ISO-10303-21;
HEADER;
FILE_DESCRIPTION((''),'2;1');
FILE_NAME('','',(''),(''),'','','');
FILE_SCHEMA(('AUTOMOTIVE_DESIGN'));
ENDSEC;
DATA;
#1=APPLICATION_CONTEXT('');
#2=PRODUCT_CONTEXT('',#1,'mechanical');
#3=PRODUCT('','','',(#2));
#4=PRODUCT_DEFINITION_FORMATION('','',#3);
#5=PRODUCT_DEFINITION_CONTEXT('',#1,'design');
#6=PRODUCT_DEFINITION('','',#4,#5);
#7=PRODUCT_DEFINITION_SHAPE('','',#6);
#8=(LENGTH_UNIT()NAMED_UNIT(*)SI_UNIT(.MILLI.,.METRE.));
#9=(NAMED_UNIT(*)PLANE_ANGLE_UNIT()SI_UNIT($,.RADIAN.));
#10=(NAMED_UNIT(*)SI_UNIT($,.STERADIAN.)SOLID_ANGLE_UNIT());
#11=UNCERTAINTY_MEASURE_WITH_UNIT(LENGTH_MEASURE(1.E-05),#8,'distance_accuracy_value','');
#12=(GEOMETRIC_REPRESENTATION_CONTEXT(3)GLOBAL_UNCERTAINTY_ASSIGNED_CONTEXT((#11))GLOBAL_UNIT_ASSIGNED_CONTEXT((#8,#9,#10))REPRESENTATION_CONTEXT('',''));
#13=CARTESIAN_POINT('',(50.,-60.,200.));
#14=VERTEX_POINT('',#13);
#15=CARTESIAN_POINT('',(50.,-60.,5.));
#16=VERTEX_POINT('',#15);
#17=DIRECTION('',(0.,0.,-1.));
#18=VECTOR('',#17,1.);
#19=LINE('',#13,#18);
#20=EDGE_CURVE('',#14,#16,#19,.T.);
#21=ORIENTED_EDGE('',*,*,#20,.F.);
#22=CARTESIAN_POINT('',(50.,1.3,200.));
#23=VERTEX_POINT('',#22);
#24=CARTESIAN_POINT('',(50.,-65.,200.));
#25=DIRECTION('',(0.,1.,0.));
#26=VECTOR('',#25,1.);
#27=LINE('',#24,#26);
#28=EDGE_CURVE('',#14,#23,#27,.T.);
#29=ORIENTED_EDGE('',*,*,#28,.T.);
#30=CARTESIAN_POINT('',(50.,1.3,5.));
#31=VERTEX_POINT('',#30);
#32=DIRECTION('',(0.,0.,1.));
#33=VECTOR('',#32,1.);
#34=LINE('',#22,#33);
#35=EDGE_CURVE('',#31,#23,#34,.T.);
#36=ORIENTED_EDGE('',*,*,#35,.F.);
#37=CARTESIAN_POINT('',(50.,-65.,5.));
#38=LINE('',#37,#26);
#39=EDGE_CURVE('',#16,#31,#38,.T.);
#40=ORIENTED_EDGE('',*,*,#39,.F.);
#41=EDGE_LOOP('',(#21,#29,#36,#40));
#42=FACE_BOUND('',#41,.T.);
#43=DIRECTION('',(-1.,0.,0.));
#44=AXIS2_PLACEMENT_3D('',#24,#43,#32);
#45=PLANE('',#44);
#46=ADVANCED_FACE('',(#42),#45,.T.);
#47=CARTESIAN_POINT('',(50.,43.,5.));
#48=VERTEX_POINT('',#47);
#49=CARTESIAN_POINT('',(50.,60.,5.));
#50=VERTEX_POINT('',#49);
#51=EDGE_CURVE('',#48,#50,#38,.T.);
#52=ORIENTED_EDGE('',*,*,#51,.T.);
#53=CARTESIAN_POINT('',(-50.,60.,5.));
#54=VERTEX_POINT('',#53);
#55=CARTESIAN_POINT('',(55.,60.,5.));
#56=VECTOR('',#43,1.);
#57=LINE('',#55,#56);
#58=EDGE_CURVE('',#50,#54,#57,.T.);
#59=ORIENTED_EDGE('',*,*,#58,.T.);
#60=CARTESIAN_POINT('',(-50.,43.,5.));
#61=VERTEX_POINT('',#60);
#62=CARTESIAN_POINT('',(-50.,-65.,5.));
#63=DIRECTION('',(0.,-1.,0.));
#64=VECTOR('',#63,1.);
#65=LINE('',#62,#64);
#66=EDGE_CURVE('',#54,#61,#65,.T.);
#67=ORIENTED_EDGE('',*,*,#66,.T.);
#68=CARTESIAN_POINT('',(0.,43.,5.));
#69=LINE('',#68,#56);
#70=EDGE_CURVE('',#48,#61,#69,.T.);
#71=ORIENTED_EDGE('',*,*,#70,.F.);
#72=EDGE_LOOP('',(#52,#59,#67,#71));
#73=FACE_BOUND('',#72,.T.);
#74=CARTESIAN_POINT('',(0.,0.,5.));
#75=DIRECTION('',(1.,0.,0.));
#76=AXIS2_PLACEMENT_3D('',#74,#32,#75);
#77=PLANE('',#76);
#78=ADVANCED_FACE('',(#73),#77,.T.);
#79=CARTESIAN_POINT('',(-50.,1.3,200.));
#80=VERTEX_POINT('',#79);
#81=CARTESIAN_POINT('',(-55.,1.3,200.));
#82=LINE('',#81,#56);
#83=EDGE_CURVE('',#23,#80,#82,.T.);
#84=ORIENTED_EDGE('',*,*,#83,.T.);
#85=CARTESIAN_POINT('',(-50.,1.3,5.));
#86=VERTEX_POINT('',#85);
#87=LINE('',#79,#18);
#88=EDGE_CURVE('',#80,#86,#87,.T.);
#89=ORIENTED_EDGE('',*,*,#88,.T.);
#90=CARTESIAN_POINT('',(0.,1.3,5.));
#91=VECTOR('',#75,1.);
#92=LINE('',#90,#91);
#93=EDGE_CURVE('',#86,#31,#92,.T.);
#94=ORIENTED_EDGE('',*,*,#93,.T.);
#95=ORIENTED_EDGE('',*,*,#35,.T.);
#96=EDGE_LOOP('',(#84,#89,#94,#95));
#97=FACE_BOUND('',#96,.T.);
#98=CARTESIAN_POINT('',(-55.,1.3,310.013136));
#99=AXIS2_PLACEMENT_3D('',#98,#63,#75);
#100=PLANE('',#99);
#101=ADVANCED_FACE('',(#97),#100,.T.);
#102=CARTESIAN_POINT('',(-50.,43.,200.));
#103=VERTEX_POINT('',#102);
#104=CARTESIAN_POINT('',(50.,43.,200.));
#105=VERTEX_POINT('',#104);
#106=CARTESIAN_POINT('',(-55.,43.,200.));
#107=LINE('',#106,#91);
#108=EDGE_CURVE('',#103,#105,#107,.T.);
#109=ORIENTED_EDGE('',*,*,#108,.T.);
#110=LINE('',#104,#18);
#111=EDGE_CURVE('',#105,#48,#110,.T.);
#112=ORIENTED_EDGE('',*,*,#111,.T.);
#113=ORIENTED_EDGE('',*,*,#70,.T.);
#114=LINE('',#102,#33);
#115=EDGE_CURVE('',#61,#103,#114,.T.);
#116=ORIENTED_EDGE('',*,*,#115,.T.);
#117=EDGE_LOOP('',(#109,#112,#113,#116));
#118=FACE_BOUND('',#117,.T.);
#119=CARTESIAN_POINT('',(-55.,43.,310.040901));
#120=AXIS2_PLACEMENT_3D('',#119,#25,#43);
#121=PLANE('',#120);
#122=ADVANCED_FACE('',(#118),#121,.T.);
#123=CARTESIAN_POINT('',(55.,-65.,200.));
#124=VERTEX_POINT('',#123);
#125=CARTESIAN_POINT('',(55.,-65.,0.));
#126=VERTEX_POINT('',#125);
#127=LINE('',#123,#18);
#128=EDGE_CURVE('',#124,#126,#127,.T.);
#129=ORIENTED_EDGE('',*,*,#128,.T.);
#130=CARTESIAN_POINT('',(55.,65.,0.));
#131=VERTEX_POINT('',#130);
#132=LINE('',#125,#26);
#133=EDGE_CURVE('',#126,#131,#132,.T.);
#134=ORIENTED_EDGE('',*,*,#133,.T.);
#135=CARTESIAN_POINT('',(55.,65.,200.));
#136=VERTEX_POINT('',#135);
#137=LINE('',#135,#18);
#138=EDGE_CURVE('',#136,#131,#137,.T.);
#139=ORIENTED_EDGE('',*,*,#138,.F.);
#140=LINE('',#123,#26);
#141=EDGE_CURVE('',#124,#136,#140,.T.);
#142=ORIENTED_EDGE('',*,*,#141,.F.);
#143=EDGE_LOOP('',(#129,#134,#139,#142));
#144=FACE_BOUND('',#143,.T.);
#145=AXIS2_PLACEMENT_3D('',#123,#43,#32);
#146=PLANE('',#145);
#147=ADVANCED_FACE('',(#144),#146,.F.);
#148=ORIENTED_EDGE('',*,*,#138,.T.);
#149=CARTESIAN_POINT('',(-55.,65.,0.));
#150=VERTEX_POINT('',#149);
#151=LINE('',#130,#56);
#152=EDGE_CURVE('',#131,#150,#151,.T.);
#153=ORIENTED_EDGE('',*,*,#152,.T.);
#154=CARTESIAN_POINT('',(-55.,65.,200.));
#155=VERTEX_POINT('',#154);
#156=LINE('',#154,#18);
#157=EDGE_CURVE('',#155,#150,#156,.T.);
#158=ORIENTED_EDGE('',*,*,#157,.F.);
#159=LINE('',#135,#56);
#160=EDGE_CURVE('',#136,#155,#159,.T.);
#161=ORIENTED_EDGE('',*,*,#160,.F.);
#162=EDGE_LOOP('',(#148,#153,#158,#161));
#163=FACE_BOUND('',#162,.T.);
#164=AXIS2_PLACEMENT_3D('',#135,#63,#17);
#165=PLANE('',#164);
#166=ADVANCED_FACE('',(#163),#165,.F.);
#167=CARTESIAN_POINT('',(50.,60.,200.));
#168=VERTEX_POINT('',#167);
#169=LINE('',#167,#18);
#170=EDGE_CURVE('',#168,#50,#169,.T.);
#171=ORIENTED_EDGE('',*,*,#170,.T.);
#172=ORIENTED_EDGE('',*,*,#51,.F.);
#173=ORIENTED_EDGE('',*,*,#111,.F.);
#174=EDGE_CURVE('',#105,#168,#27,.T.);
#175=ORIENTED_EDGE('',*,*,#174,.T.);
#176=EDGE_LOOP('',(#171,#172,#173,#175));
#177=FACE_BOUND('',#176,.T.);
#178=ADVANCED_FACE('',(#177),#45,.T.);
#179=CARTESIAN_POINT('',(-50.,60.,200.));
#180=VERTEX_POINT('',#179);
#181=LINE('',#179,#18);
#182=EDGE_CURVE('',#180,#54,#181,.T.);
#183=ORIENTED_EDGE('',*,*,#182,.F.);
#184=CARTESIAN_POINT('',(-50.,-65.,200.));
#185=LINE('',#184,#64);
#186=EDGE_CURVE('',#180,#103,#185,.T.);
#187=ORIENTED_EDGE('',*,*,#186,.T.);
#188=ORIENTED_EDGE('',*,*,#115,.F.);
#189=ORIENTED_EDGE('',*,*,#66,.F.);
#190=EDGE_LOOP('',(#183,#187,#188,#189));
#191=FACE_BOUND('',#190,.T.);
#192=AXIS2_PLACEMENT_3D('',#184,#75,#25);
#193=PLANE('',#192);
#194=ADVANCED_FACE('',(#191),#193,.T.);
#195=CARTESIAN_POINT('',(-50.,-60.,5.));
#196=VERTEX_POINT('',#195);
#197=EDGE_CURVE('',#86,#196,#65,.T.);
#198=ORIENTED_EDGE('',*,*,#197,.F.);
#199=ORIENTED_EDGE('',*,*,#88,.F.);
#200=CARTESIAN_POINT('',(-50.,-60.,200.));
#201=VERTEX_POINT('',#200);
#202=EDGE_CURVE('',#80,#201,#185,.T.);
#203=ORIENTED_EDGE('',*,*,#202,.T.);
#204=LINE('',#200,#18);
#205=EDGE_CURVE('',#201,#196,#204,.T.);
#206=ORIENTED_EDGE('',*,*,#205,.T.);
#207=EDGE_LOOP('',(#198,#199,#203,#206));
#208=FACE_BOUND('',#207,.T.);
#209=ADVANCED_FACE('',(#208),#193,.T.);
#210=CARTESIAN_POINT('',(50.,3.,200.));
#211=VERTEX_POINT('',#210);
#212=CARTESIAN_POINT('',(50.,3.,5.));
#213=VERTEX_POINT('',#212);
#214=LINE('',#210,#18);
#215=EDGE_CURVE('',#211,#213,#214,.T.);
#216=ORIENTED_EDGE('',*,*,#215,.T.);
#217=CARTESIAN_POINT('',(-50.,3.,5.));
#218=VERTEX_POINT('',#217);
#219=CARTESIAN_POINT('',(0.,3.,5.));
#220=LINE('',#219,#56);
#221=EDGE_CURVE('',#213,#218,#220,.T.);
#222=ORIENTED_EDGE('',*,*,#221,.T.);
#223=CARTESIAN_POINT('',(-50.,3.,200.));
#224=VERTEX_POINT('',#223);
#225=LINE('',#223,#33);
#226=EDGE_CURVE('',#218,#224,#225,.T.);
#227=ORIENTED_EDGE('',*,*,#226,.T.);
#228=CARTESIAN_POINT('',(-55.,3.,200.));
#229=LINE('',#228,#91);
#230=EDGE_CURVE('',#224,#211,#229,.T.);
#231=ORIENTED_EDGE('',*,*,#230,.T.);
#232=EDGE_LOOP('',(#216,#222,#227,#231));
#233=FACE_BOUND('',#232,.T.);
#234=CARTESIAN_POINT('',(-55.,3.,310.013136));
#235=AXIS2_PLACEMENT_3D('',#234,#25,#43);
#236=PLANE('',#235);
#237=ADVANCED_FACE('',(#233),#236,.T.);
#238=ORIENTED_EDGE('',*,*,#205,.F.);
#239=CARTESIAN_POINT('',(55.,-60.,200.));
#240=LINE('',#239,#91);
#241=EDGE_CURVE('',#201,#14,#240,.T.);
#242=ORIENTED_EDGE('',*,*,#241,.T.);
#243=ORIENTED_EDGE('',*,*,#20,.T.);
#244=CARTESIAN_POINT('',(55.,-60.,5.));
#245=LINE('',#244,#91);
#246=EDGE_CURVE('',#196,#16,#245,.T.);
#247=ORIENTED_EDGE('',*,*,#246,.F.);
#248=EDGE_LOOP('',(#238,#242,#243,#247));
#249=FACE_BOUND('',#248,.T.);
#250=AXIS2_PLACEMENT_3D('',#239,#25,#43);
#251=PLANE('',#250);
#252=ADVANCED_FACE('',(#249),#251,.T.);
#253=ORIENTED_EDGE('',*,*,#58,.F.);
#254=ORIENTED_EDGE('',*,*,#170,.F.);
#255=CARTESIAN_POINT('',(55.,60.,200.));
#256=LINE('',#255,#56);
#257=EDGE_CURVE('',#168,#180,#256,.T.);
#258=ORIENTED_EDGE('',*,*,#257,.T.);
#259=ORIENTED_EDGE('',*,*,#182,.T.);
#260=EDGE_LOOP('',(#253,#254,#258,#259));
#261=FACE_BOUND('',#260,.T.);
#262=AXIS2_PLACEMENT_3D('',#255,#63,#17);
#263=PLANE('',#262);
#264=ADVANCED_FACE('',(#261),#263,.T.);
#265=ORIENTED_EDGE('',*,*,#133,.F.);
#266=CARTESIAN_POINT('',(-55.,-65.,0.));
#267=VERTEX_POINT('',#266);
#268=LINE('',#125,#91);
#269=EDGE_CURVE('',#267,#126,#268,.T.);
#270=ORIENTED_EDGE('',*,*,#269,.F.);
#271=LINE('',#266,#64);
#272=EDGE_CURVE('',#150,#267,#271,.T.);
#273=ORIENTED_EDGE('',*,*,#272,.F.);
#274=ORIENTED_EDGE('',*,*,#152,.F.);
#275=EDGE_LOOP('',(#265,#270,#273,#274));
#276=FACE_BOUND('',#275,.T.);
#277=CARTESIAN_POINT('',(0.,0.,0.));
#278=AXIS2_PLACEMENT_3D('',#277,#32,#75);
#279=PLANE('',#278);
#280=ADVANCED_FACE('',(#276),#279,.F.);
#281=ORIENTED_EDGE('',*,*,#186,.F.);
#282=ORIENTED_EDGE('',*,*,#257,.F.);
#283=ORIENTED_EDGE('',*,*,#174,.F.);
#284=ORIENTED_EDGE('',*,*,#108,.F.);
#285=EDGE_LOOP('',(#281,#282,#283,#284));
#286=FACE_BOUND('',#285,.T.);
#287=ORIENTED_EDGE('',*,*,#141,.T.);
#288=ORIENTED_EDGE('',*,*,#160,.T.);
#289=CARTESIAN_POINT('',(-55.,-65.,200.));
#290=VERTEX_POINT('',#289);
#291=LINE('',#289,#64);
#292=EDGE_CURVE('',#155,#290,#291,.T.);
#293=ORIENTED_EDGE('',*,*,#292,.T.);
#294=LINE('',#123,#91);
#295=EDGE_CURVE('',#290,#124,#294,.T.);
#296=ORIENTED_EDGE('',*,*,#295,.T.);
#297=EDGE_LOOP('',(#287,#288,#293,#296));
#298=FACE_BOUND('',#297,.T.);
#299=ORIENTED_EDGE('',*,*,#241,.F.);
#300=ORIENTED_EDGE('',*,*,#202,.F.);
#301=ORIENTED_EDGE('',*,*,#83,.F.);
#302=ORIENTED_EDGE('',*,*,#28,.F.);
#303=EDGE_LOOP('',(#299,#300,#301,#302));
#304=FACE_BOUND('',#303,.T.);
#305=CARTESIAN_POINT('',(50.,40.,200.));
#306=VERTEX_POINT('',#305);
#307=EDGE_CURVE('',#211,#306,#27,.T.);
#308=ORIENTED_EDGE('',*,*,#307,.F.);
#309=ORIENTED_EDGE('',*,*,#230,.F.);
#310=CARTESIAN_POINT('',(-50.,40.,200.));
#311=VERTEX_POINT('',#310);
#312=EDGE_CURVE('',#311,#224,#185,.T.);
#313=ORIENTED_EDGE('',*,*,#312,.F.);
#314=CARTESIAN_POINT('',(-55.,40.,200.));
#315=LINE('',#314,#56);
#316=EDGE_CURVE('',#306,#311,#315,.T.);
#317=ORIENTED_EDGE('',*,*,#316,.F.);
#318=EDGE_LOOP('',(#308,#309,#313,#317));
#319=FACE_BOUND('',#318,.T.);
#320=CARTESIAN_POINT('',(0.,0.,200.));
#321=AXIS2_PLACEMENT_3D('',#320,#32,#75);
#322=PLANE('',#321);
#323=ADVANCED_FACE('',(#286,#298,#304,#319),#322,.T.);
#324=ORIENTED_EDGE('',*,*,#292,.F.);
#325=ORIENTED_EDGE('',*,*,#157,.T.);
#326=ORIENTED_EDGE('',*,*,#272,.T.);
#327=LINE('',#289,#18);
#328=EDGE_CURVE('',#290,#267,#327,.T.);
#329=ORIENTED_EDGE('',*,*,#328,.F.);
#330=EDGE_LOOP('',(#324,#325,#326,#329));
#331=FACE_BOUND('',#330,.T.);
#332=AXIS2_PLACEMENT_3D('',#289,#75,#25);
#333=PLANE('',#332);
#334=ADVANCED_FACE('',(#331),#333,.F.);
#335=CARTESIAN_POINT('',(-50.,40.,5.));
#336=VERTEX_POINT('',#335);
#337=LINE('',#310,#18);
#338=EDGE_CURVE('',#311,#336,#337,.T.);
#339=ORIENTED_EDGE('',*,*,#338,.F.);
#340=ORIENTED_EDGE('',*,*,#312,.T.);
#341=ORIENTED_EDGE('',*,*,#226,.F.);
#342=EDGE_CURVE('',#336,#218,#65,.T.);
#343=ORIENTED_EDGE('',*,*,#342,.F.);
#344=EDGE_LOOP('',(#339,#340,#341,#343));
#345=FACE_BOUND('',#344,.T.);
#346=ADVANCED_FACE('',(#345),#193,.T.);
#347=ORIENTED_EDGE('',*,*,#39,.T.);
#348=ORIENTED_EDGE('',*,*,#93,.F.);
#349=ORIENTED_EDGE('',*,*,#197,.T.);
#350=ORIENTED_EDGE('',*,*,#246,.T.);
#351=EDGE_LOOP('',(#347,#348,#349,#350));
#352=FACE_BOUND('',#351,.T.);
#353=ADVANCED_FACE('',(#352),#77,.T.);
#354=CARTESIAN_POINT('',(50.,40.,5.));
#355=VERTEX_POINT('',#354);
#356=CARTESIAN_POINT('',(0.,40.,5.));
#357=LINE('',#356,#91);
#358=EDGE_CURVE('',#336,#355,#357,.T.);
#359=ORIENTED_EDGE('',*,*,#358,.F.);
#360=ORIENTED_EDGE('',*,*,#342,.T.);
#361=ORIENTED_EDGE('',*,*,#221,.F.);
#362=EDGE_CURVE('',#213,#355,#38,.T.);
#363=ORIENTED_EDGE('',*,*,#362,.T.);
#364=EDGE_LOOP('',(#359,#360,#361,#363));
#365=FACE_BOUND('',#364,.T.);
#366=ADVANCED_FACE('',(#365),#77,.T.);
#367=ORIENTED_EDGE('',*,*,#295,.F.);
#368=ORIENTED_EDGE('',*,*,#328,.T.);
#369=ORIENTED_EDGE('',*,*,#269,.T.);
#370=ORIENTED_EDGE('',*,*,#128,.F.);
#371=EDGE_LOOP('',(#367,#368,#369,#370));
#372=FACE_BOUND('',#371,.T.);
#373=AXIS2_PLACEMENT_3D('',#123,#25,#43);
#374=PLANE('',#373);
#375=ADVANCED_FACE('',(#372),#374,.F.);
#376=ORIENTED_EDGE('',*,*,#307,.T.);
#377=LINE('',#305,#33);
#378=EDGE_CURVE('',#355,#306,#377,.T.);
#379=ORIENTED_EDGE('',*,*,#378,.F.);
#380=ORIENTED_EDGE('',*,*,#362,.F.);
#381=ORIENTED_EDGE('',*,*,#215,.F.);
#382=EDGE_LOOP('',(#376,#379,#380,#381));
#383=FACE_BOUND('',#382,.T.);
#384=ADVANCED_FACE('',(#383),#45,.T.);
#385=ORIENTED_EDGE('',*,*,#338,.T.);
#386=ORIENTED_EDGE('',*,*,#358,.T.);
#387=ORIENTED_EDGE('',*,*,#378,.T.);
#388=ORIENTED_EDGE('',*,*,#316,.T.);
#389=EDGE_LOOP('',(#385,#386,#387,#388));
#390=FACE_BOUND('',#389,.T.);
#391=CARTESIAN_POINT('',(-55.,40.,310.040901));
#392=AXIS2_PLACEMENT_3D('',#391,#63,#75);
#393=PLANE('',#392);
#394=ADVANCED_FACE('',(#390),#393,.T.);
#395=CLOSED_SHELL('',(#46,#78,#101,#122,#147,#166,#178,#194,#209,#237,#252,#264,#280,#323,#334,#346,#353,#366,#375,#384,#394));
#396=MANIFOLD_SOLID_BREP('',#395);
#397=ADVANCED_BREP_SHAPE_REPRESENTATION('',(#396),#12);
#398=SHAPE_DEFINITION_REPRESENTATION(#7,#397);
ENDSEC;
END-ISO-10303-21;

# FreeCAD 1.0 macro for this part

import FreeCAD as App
import Part
import Sketcher

V = App.Vector
Q = App.Units.Quantity


def faces_at(feature, points):
    """Names of the faces that lie closest to the given points."""
    faces = feature.Shape.Faces
    near = lambda p: min(range(len(faces)), key=lambda i: faces[i].distToShape(Part.Vertex(*p))[0])
    return sorted({f"Face{near(p) + 1}" for p in points})

doc = App.newDocument("Part")
params = doc.addObject("Spreadsheet::Sheet", "Params")
for row, (alias, value) in enumerate([
    ("sketch1_width", "110 mm"),
    ("sketch1_height", "130 mm"),
    ("pad1_length", "200 mm"),
    ("thickness_wall", "5 mm"),
    ("sketch2_width", "110 mm"),
    ("sketch2_height", "1.7 mm"),
    ("pad2_length", "200 mm"),
    ("sketch3_width", "110 mm"),
    ("sketch3_height", "3 mm"),
    ("pad3_length", "200 mm"),
], start=1):
    params.set(f"A{row}", alias)
    params.set(f"B{row}", "=" + value)
    params.setAlias(f"B{row}", alias)

body = doc.addObject("PartDesign::Body", "Body")

sketch1 = doc.addObject("Sketcher::SketchObject", "Sketch")
body.addObject(sketch1)
sketch1.AttachmentSupport = (doc.XY_Plane, [""])
sketch1.MapMode = "FlatFace"
sketch1.addGeometry([
    Part.LineSegment(V(-55, 65, 0), V(-55, -65, 0)),
    Part.LineSegment(V(-55, -65, 0), V(55, -65, 0)),
    Part.LineSegment(V(55, -65, 0), V(55, 65, 0)),
    Part.LineSegment(V(55, 65, 0), V(-55, 65, 0)),
], False)
sketch1.addConstraint([
    Sketcher.Constraint("Coincident", 0, 2, 1, 1),
    Sketcher.Constraint("Coincident", 1, 2, 2, 1),
    Sketcher.Constraint("Coincident", 2, 2, 3, 1),
    Sketcher.Constraint("Coincident", 3, 2, 0, 1),
    Sketcher.Constraint("Vertical", 0),
    Sketcher.Constraint("Horizontal", 1),
    Sketcher.Constraint("Vertical", 2),
    Sketcher.Constraint("Horizontal", 3),
    Sketcher.Constraint("Symmetric", 0, 2, 2, 2, -1, 1),
    Sketcher.Constraint("DistanceX", 1, 1, 1, 2, Q("110 mm")),
    Sketcher.Constraint("DistanceY", 0, 2, 0, 1, Q("130 mm")),
])
sketch1.setExpression("Constraints[9]", "Params.sketch1_width")
sketch1.setExpression("Constraints[10]", "Params.sketch1_height")
pad1 = doc.addObject("PartDesign::Pad", "Pad")
body.addObject(pad1)
pad1.Profile = sketch1
pad1.setExpression("Length", "Params.pad1_length")
doc.recompute()

thickness = doc.addObject("PartDesign::Thickness", "Thickness")
body.addObject(thickness)
thickness.Base = (pad1, faces_at(pad1, [(0, 0, 200)]))
thickness.setExpression("Value", "Params.thickness_wall")
thickness.Reversed = True
thickness.Join = "Intersection"

sketch2 = doc.addObject("Sketcher::SketchObject", "Sketch001")
body.addObject(sketch2)
sketch2.AttachmentSupport = (doc.XY_Plane, [""])
sketch2.MapMode = "FlatFace"
sketch2.addGeometry([
    Part.LineSegment(V(55, 3, 0), V(55, 1.3, 0)),
    Part.LineSegment(V(55, 1.3, 0), V(-55, 1.3, 0)),
    Part.LineSegment(V(-55, 1.3, 0), V(-55, 3, 0)),
    Part.LineSegment(V(-55, 3, 0), V(55, 3, 0)),
], False)
sketch2.addConstraint([
    Sketcher.Constraint("Coincident", 0, 2, 1, 1),
    Sketcher.Constraint("Coincident", 1, 2, 2, 1),
    Sketcher.Constraint("Coincident", 2, 2, 3, 1),
    Sketcher.Constraint("Coincident", 3, 2, 0, 1),
    Sketcher.Constraint("Vertical", 0),
    Sketcher.Constraint("Horizontal", 1),
    Sketcher.Constraint("Vertical", 2),
    Sketcher.Constraint("Horizontal", 3),
    Sketcher.Constraint("DistanceX", 1, 2, 1, 1, Q("110 mm")),
    Sketcher.Constraint("DistanceY", 0, 2, 0, 1, Q("1.7 mm")),
    Sketcher.Constraint("DistanceX", -1, 1, 0, 2, Q("55 mm")),
    Sketcher.Constraint("DistanceY", -1, 1, 2, 2, Q("3 mm")),
])
sketch2.setExpression("Constraints[8]", "Params.sketch2_width")
sketch2.setExpression("Constraints[9]", "Params.sketch2_height")
pad2 = doc.addObject("PartDesign::Pad", "Pad001")
body.addObject(pad2)
pad2.Profile = sketch2
pad2.setExpression("Length", "Params.pad2_length")

sketch3 = doc.addObject("Sketcher::SketchObject", "Sketch002")
body.addObject(sketch3)
sketch3.AttachmentSupport = (doc.XY_Plane, [""])
sketch3.MapMode = "FlatFace"
sketch3.addGeometry([
    Part.LineSegment(V(55, 43, 0), V(55, 40, 0)),
    Part.LineSegment(V(55, 40, 0), V(-55, 40, 0)),
    Part.LineSegment(V(-55, 40, 0), V(-55, 43, 0)),
    Part.LineSegment(V(-55, 43, 0), V(55, 43, 0)),
], False)
sketch3.addConstraint([
    Sketcher.Constraint("Coincident", 0, 2, 1, 1),
    Sketcher.Constraint("Coincident", 1, 2, 2, 1),
    Sketcher.Constraint("Coincident", 2, 2, 3, 1),
    Sketcher.Constraint("Coincident", 3, 2, 0, 1),
    Sketcher.Constraint("Vertical", 0),
    Sketcher.Constraint("Horizontal", 1),
    Sketcher.Constraint("Vertical", 2),
    Sketcher.Constraint("Horizontal", 3),
    Sketcher.Constraint("DistanceX", 1, 2, 1, 1, Q("110 mm")),
    Sketcher.Constraint("DistanceY", 0, 2, 0, 1, Q("3 mm")),
    Sketcher.Constraint("DistanceX", -1, 1, 0, 2, Q("55 mm")),
    Sketcher.Constraint("DistanceY", -1, 1, 0, 2, Q("40 mm")),
])
sketch3.setExpression("Constraints[8]", "Params.sketch3_width")
sketch3.setExpression("Constraints[9]", "Params.sketch3_height")
pad3 = doc.addObject("PartDesign::Pad", "Pad002")
body.addObject(pad3)
pad3.Profile = sketch3
pad3.setExpression("Length", "Params.pad3_length")

doc.recompute()
